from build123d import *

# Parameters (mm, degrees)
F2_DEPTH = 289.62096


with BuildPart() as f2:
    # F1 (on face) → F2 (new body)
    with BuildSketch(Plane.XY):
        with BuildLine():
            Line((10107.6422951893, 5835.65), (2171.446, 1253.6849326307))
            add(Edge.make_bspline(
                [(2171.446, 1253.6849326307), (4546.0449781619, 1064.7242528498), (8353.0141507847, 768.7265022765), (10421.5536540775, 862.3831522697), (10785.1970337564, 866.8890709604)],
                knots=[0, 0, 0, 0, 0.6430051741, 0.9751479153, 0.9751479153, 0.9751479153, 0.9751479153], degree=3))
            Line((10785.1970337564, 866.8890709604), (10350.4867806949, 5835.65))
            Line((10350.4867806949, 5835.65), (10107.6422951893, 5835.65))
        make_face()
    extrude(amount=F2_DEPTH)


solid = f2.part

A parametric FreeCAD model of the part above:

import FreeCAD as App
import Part
import Sketcher
from FreeCAD import Vector
Q = App.Units.Quantity

doc = App.newDocument("Part")
body = doc.addObject("PartDesign::Body", "Body")

sketch1 = body.newObject("Sketcher::SketchObject", "Sketch")
sketch1.AttachmentSupport = (doc.getObject("XY_Plane"), [""])
sketch1.MapMode = "FlatFace"
sketch1.addGeometry(Part.LineSegment(Vector(10107.642295, 5835.65, 0), Vector(2171.446, 1253.684933, 0)), False)
sketch1.addGeometry(Part.BSplineCurve([Vector(2171.446, 1253.684933, 0), Vector(4546.044978, 1064.724253, 0), Vector(8353.014151, 768.726502, 0), Vector(10421.553654, 862.383152, 0), Vector(10785.197034, 866.889071, 0)], [4, 1, 4], [0, 0.643005174, 0.975147915], False, 3, [1, 1, 1, 1, 1], False), False)
sketch1.addGeometry(Part.LineSegment(Vector(10785.197034, 866.889071, 0), Vector(10350.486781, 5835.65, 0)), False)
sketch1.addGeometry(Part.LineSegment(Vector(10350.486781, 5835.65, 0), Vector(10107.642295, 5835.65, 0)), False)
sketch1.addConstraint(Sketcher.Constraint("Block", 1))
sketch1.addConstraint(Sketcher.Constraint("Coincident", 0, 2, 1, 1))
sketch1.addConstraint(Sketcher.Constraint("Coincident", 1, 2, 2, 1))
sketch1.addConstraint(Sketcher.Constraint("Coincident", 2, 2, 3, 1))
sketch1.addConstraint(Sketcher.Constraint("Coincident", 3, 2, 0, 1))
sketch1.addConstraint(Sketcher.Constraint("Horizontal", 3))
sketch1.addConstraint(Sketcher.Constraint("Angle", 0, Q("-150 deg")))
sketch1.addConstraint(Sketcher.Constraint("Angle", 2, Q("95 deg")))
sketch1.addConstraint(Sketcher.Constraint("DistanceY", -1, 1, 2, 2, Q("5835.65 mm")))
pad1 = body.newObject("PartDesign::Pad", "Pad")
pad1.Profile = sketch1
pad1.Length = 289.62096

doc.recompute()
